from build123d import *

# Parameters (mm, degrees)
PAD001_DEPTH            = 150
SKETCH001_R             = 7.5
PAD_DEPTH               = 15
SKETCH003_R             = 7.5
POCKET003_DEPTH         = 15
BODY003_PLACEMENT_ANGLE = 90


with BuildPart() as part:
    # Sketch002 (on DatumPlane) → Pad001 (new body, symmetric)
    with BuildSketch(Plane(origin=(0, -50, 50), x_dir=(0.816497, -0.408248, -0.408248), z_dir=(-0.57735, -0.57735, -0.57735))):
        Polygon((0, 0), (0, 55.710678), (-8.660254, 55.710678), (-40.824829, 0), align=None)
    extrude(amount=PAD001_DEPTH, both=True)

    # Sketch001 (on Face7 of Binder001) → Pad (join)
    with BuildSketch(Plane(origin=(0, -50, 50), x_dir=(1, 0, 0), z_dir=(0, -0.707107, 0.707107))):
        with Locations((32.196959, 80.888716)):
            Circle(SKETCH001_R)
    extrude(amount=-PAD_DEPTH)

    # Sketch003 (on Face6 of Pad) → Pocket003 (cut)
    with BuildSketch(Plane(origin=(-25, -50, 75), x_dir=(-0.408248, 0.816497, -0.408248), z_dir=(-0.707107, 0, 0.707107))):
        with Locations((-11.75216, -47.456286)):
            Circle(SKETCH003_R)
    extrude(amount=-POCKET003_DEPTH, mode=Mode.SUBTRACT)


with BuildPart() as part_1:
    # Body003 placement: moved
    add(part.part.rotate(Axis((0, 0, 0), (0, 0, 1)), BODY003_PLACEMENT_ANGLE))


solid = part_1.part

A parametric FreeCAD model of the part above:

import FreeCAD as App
import Part
import Sketcher
from FreeCAD import Vector
Q = App.Units.Quantity

doc = App.newDocument("Part")
body = doc.addObject("PartDesign::Body", "Body")

# Sketch on an angled plane
sketch1 = body.newObject("Sketcher::SketchObject", "Sketch")
sketch1.Placement = App.Placement(Vector(0, -50, 50), App.Rotation(Vector(0.816496581, -0.40824829, -0.40824829), Vector(0, -0.707106781, 0.707106781), Vector(-0.577350269, -0.577350269, -0.577350269), "ZXY"))
sketch1.addGeometry(Part.LineSegment(Vector(0, 0, 0), Vector(0, 56, 0)), False)
sketch1.addGeometry(Part.LineSegment(Vector(0, 56, 0), Vector(-9, 56, 0)), False)
sketch1.addGeometry(Part.LineSegment(Vector(-9, 56, 0), Vector(-41, 0, 0)), False)
sketch1.addGeometry(Part.LineSegment(Vector(-41, 0, 0), Vector(0, 0, 0)), False)
sketch1.addConstraint(Sketcher.Constraint("Coincident", 0, 2, 1, 1))
sketch1.addConstraint(Sketcher.Constraint("Coincident", 1, 2, 2, 1))
sketch1.addConstraint(Sketcher.Constraint("Coincident", 2, 2, 3, 1))
sketch1.addConstraint(Sketcher.Constraint("Coincident", 3, 2, 0, 1))
sketch1.addConstraint(Sketcher.Constraint("Vertical", 0))
sketch1.addConstraint(Sketcher.Constraint("Horizontal", 1))
sketch1.addConstraint(Sketcher.Constraint("Horizontal", 3))
sketch1.addConstraint(Sketcher.Constraint("Coincident", 3, 2, -1, 1))
sketch1.addConstraint(Sketcher.Constraint("Angle", 2, Q("-120 deg")))
sketch1.addConstraint(Sketcher.Constraint("DistanceX", 3, 1, 3, 2, 40.824829))
sketch1.addConstraint(Sketcher.Constraint("Distance", 2, 64.32915))
pad1 = body.newObject("PartDesign::Pad", "Pad")
pad1.Profile = sketch1
pad1.Length = 300
pad1.Midplane = True

# Sketch on an angled plane
sketch2 = body.newObject("Sketcher::SketchObject", "Sketch001")
sketch2.Placement = App.Placement(Vector(0, -50, 50), App.Rotation(Vector(1, 0, 0), Vector(0, 0.707106781, 0.707106781), Vector(0, -0.707106781, 0.707106781), "ZXY"))
sketch2.addGeometry(Part.Circle(Vector(32, 81, 0), Vector(0, 0, 1), 8), False)
sketch2.addConstraint(Sketcher.Constraint("Diameter", 0, 15.0))
sketch2.addConstraint(Sketcher.Constraint("DistanceX", -1, 1, 0, 3, 32.196959))
sketch2.addConstraint(Sketcher.Constraint("DistanceY", -1, 1, 0, 3, 80.888716))
pad2 = body.newObject("PartDesign::Pad", "Pad001")
pad2.Profile = sketch2
pad2.Length = 15
pad2.Reversed = True

# Sketch on an angled plane
sketch3 = body.newObject("Sketcher::SketchObject", "Sketch002")
sketch3.Placement = App.Placement(Vector(-25, -50, 75), App.Rotation(Vector(-0.408247957, 0.816496914, -0.408247957), Vector(-0.577350505, -0.577349797, -0.577350505), Vector(-0.707106781, 0, 0.707106781), "ZXY"))
sketch3.addGeometry(Part.Circle(Vector(-12, -47, 0), Vector(0, 0, 1), 8), False)
sketch3.addConstraint(Sketcher.Constraint("Diameter", 0, 15.0))
sketch3.addConstraint(Sketcher.Constraint("DistanceX", 0, 3, -1, 1, 11.75216))
sketch3.addConstraint(Sketcher.Constraint("DistanceY", 0, 3, -1, 1, 47.456286))
pocket1 = body.newObject("PartDesign::Pocket", "Pocket")
pocket1.Profile = sketch3
pocket1.Length = 15
body2 = doc.addObject("PartDesign::Body", "Body001")
doc.recompute()

body.Placement = App.Placement(Vector(0, 0, 0), App.Rotation(Vector(0, 0, 1), 90))
boolean = body2.newObject("PartDesign::Boolean", "Boolean")
boolean.Type = "Fuse"
boolean.addObjects([body])

doc.recompute()
